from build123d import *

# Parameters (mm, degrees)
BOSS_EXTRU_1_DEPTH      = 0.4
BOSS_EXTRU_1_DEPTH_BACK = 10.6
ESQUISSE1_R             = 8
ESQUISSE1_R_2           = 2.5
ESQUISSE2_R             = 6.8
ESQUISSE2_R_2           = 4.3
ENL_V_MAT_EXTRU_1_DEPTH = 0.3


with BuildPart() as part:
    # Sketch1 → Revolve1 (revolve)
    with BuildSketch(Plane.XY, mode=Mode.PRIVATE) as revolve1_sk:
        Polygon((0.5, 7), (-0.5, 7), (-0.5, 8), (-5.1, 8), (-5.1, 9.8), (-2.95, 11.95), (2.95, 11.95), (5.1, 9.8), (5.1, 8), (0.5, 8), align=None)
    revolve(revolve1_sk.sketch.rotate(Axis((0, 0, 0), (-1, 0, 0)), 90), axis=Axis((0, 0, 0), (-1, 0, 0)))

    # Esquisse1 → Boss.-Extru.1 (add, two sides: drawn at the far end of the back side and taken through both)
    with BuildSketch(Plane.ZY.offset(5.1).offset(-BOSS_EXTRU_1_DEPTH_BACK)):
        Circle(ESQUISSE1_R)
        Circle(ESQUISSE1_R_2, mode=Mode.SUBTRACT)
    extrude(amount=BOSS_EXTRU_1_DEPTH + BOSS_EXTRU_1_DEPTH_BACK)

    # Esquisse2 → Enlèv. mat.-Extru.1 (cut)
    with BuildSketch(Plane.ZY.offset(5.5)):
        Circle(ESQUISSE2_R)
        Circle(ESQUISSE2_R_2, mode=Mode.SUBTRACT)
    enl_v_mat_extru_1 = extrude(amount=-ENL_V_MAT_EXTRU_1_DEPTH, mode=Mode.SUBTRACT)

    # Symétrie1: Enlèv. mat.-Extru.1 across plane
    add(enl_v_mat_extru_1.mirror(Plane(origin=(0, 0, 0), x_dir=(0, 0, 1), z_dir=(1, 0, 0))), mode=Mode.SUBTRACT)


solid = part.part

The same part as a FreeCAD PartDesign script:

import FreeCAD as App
import Part
import Sketcher

V = App.Vector
Q = App.Units.Quantity

doc = App.newDocument("Part")
body = doc.addObject("PartDesign::Body", "Body")

# Sketch on XY plane
sketch1 = doc.addObject("Sketcher::SketchObject", "Sketch")
body.addObject(sketch1)
sketch1.AttachmentSupport = (doc.XY_Plane, [""])
sketch1.MapMode = "FlatFace"
sketch1.addGeometry(Part.LineSegment(V(-0.5, 7, 0), V(0.5, 7, 0)), False)
sketch1.addGeometry(Part.LineSegment(V(0.5, 7, 0), V(0.5, 8, 0)), False)
sketch1.addGeometry(Part.LineSegment(V(0.5, 8, 0), V(5.1, 8, 0)), False)
sketch1.addGeometry(Part.LineSegment(V(5.1, 8, 0), V(5.1, 9.8, 0)), False)
sketch1.addGeometry(Part.LineSegment(V(5.1, 9.8, 0), V(3, 11.9, 0)), False)
sketch1.addGeometry(Part.LineSegment(V(3, 11.9, 0), V(-3, 11.9, 0)), False)
sketch1.addGeometry(Part.LineSegment(V(-3, 11.9, 0), V(-5.1, 9.8, 0)), False)
sketch1.addGeometry(Part.LineSegment(V(-5.1, 9.8, 0), V(-5.1, 8, 0)), False)
sketch1.addGeometry(Part.LineSegment(V(-5.1, 8, 0), V(-0.5, 8, 0)), False)
sketch1.addGeometry(Part.LineSegment(V(-0.5, 8, 0), V(-0.5, 7, 0)), False)
sketch1.addConstraint(Sketcher.Constraint("Coincident", 0, 2, 1, 1))
sketch1.addConstraint(Sketcher.Constraint("Coincident", 1, 2, 2, 1))
sketch1.addConstraint(Sketcher.Constraint("Coincident", 2, 2, 3, 1))
sketch1.addConstraint(Sketcher.Constraint("Coincident", 3, 2, 4, 1))
sketch1.addConstraint(Sketcher.Constraint("Coincident", 4, 2, 5, 1))
sketch1.addConstraint(Sketcher.Constraint("Coincident", 5, 2, 6, 1))
sketch1.addConstraint(Sketcher.Constraint("Coincident", 6, 2, 7, 1))
sketch1.addConstraint(Sketcher.Constraint("Coincident", 7, 2, 8, 1))
sketch1.addConstraint(Sketcher.Constraint("Coincident", 8, 2, 9, 1))
sketch1.addConstraint(Sketcher.Constraint("Coincident", 9, 2, 0, 1))
sketch1.addConstraint(Sketcher.Constraint("Horizontal", 0))
sketch1.addConstraint(Sketcher.Constraint("Vertical", 1))
sketch1.addConstraint(Sketcher.Constraint("Horizontal", 2))
sketch1.addConstraint(Sketcher.Constraint("Vertical", 3))
sketch1.addConstraint(Sketcher.Constraint("Horizontal", 5))
sketch1.addConstraint(Sketcher.Constraint("Vertical", 7))
sketch1.addConstraint(Sketcher.Constraint("Horizontal", 8))
sketch1.addConstraint(Sketcher.Constraint("Vertical", 9))
sketch1.addConstraint(Sketcher.Constraint("Symmetric", 3, 2, 6, 2, -2))
sketch1.addConstraint(Sketcher.Constraint("Symmetric", 1, 2, 8, 2, -2))
sketch1.addConstraint(Sketcher.Constraint("Perpendicular", 4, 6))
sketch1.addConstraint(Sketcher.Constraint("Equal", 0, 1))
sketch1.addConstraint(Sketcher.Constraint("Equal", 4, 6))
sketch1.addConstraint(Sketcher.Constraint("DistanceX", 0, 1, 0, 2, Q("1 mm")))
sketch1.addConstraint(Sketcher.Constraint("DistanceX", 2, 1, 2, 2, Q("4.6 mm")))
sketch1.addConstraint(Sketcher.Constraint("DistanceX", 5, 2, 5, 1, Q("5.9 mm")))
sketch1.addConstraint(Sketcher.Constraint("DistanceY", 3, 1, 3, 2, Q("1.8 mm")))
sketch1.addConstraint(Sketcher.Constraint("DistanceY", -1, 1, 0, 2, Q("7 mm")))
revolution = doc.addObject("PartDesign::Revolution", "Revolution")
body.addObject(revolution)
revolution.Profile = sketch1
revolution.ReferenceAxis = (sketch1, ["H_Axis"])
revolution.Angle = 360

# Sketch on YZ plane
sketch2 = doc.addObject("Sketcher::SketchObject", "Sketch001")
body.addObject(sketch2)
sketch2.AttachmentSupport = (doc.YZ_Plane, [""])
sketch2.MapMode = "FlatFace"
sketch2.AttachmentOffset = App.Placement(V(0, 0, -5.1), App.Rotation())
sketch2.addGeometry(Part.Circle(V(0, 0, 0), V(0, 0, 1), 8), False)
sketch2.addGeometry(Part.Circle(V(0, 0, 0), V(0, 0, 1), 2.5), False)
sketch2.addConstraint(Sketcher.Constraint("Coincident", 0, 3, -1, 1))
sketch2.addConstraint(Sketcher.Constraint("Coincident", 1, 3, -1, 1))
sketch2.addConstraint(Sketcher.Constraint("Diameter", 0, Q("16 mm")))
sketch2.addConstraint(Sketcher.Constraint("Diameter", 1, Q("5 mm")))
pad1 = doc.addObject("PartDesign::Pad", "Pad")
body.addObject(pad1)
pad1.Profile = sketch2
pad1.Type = "TwoLengths"
pad1.Length = 0.4
pad1.Length2 = 10.6
pad1.Reversed = True

# Sketch on YZ plane
sketch3 = doc.addObject("Sketcher::SketchObject", "Sketch002")
body.addObject(sketch3)
sketch3.AttachmentSupport = (doc.YZ_Plane, [""])
sketch3.MapMode = "FlatFace"
sketch3.AttachmentOffset = App.Placement(V(0, 0, -5.5), App.Rotation())
sketch3.addGeometry(Part.Circle(V(0, 0, 0), V(0, 0, 1), 6.8), False)
sketch3.addGeometry(Part.Circle(V(0, 0, 0), V(0, 0, 1), 4.3), False)
sketch3.addConstraint(Sketcher.Constraint("Coincident", 0, 3, -1, 1))
sketch3.addConstraint(Sketcher.Constraint("Coincident", 1, 3, -1, 1))
sketch3.addConstraint(Sketcher.Constraint("Diameter", 0, Q("13.6 mm")))
sketch3.addConstraint(Sketcher.Constraint("Diameter", 1, Q("8.6 mm")))
pocket1 = doc.addObject("PartDesign::Pocket", "Pocket")
body.addObject(pocket1)
pocket1.Profile = sketch3
pocket1.Length = 0.3
pocket1.Reversed = True
doc.recompute()

mirrored = doc.addObject("PartDesign::Mirrored", "Mirrored")
body.addObject(mirrored)
mirrored.Originals = [pocket1]
mirrored.MirrorPlane = (doc.YZ_Plane, [""])
body.Tip = mirrored

doc.recompute()
